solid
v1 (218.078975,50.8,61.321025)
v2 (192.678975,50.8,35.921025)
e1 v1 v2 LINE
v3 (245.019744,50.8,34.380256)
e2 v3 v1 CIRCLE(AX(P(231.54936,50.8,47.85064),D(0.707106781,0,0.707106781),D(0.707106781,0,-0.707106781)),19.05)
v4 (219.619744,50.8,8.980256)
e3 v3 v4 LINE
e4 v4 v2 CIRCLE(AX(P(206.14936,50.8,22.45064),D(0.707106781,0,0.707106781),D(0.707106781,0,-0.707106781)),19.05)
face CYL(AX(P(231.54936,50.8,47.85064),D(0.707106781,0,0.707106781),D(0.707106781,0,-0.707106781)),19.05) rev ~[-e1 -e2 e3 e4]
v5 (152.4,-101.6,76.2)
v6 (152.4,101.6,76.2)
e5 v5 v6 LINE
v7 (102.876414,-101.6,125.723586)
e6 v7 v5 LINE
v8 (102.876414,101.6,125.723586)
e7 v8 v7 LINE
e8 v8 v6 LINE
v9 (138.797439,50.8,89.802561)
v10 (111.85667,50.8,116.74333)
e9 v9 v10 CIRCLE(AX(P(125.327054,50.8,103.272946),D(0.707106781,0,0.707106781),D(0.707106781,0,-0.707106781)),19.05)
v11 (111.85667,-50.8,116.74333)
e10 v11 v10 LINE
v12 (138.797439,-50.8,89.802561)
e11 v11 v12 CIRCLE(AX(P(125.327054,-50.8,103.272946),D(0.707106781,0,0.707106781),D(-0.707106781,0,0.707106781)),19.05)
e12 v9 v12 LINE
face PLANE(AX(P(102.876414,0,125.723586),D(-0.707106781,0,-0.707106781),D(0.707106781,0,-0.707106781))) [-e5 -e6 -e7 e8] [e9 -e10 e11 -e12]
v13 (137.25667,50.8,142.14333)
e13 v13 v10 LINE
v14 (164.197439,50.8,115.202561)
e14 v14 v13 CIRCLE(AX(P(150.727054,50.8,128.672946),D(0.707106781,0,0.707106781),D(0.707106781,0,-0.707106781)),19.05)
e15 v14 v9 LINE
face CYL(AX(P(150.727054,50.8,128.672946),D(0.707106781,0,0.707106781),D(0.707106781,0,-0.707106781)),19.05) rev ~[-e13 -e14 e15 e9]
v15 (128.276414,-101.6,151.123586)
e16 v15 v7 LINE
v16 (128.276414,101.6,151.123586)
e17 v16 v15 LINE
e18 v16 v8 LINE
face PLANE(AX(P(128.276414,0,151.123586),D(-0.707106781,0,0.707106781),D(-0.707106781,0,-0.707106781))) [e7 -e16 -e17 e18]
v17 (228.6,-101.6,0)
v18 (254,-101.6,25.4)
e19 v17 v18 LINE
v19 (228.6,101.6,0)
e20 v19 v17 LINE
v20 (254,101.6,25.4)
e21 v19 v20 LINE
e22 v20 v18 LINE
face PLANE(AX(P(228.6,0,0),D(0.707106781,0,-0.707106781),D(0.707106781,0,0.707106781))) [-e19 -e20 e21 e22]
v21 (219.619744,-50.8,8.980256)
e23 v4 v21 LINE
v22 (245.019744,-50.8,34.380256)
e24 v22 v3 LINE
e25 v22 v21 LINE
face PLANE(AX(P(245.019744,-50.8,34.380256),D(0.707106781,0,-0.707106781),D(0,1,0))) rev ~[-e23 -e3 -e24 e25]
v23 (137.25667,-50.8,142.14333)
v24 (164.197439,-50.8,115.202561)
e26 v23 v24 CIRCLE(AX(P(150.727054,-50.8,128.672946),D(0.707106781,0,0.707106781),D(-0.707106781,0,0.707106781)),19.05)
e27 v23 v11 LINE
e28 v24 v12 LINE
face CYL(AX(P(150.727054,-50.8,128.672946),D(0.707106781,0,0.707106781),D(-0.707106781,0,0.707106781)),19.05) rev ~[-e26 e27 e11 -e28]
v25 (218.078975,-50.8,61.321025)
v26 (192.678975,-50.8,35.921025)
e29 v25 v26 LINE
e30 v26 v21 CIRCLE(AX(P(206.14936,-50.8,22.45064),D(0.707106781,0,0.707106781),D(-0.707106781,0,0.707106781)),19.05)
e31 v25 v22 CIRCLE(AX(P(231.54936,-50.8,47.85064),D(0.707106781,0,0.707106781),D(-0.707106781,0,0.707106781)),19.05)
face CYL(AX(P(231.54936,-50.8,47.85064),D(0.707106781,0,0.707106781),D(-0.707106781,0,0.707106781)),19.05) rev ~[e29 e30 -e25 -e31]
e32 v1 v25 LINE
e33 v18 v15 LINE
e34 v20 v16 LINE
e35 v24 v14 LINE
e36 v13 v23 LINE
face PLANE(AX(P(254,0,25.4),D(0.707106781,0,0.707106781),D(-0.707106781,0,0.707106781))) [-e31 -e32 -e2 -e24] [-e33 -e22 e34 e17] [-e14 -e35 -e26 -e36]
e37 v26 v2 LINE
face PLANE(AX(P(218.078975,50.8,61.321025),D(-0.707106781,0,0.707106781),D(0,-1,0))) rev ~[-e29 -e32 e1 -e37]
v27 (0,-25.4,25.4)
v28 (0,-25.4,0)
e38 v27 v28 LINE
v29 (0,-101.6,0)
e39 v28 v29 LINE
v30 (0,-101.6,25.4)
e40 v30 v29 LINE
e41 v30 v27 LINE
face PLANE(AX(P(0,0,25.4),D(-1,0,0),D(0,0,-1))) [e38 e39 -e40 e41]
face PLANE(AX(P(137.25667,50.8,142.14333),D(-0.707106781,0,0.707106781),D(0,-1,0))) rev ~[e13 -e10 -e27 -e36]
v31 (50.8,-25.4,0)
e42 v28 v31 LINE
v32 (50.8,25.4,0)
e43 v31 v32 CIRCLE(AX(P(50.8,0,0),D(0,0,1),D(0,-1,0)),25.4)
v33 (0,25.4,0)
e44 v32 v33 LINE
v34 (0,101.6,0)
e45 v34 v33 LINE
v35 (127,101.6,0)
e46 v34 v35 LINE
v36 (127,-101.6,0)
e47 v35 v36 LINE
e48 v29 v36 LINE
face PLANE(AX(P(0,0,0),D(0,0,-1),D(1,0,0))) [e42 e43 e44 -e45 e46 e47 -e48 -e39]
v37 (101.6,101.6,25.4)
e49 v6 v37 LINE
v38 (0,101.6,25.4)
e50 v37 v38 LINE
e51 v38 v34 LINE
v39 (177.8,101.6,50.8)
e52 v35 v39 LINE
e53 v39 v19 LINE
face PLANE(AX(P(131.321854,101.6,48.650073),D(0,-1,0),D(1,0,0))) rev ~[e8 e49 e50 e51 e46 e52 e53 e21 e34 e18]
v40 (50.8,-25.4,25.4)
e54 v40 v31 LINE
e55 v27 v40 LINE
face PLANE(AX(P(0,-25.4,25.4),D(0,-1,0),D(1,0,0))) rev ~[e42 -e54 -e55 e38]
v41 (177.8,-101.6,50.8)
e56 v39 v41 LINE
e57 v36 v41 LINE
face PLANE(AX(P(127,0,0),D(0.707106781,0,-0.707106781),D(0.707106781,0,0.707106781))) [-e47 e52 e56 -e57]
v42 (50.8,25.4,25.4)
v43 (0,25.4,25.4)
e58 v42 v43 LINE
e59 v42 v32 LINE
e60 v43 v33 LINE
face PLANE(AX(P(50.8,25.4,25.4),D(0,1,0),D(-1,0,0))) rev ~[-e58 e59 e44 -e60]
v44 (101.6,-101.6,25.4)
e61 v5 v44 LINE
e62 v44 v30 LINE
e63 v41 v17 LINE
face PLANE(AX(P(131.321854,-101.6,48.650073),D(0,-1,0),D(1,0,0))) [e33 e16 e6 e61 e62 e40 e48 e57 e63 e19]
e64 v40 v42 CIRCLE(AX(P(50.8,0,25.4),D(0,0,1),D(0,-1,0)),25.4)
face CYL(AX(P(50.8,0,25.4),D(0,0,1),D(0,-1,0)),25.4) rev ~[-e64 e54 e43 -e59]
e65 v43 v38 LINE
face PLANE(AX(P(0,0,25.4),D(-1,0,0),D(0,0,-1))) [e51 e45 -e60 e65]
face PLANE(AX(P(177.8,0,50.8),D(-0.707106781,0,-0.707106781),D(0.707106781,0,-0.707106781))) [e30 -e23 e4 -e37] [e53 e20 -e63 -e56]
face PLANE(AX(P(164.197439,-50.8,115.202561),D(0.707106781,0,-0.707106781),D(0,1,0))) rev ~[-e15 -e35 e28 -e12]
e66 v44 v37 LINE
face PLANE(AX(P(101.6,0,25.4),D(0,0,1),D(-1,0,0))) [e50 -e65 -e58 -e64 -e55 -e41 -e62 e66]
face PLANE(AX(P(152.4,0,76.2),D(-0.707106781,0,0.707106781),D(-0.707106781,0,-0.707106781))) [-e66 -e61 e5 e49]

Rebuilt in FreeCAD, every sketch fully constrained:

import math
import FreeCAD as App
import Part
import Sketcher
from FreeCAD import Vector
Q = App.Units.Quantity

doc = App.newDocument("Part")
body = doc.addObject("PartDesign::Body", "Body")

sketch1 = body.newObject("Sketcher::SketchObject", "Sketch")
sketch1.AttachmentSupport = (doc.getObject("XZ_Plane"), [""])
sketch1.MapMode = "FlatFace"
sketch1.addGeometry(Part.LineSegment(Vector(0, 25, 0), Vector(0, 0, 0)), False)
sketch1.addGeometry(Part.LineSegment(Vector(0, 0, 0), Vector(127, 0, 0)), False)
sketch1.addGeometry(Part.LineSegment(Vector(127, 0, 0), Vector(178, 51, 0)), False)
sketch1.addGeometry(Part.LineSegment(Vector(178, 51, 0), Vector(229, 0, 0)), False)
sketch1.addGeometry(Part.LineSegment(Vector(229, 0, 0), Vector(254, 25, 0)), False)
sketch1.addGeometry(Part.LineSegment(Vector(254, 25, 0), Vector(128, 151, 0)), False)
sketch1.addGeometry(Part.LineSegment(Vector(128, 151, 0), Vector(103, 126, 0)), False)
sketch1.addGeometry(Part.LineSegment(Vector(103, 126, 0), Vector(152, 76, 0)), False)
sketch1.addGeometry(Part.LineSegment(Vector(152, 76, 0), Vector(102, 25, 0)), False)
sketch1.addGeometry(Part.LineSegment(Vector(102, 25, 0), Vector(0, 25, 0)), False)
sketch1.addConstraint(Sketcher.Constraint("Coincident", 0, 2, 1, 1))
sketch1.addConstraint(Sketcher.Constraint("Coincident", 1, 2, 2, 1))
sketch1.addConstraint(Sketcher.Constraint("Coincident", 2, 2, 3, 1))
sketch1.addConstraint(Sketcher.Constraint("Coincident", 3, 2, 4, 1))
sketch1.addConstraint(Sketcher.Constraint("Coincident", 4, 2, 5, 1))
sketch1.addConstraint(Sketcher.Constraint("Coincident", 5, 2, 6, 1))
sketch1.addConstraint(Sketcher.Constraint("Coincident", 6, 2, 7, 1))
sketch1.addConstraint(Sketcher.Constraint("Coincident", 7, 2, 8, 1))
sketch1.addConstraint(Sketcher.Constraint("Coincident", 8, 2, 9, 1))
sketch1.addConstraint(Sketcher.Constraint("Coincident", 9, 2, 0, 1))
sketch1.addConstraint(Sketcher.Constraint("Vertical", 0))
sketch1.addConstraint(Sketcher.Constraint("Horizontal", 1))
sketch1.addConstraint(Sketcher.Constraint("Horizontal", 9))
sketch1.addConstraint(Sketcher.Constraint("Coincident", 0, 2, -1, 1))
sketch1.addConstraint(Sketcher.Constraint("PointOnObject", 3, 2, -1))
sketch1.addConstraint(Sketcher.Constraint("Perpendicular", 2, 3))
sketch1.addConstraint(Sketcher.Constraint("Perpendicular", 3, 4))
sketch1.addConstraint(Sketcher.Constraint("Perpendicular", 4, 5))
sketch1.addConstraint(Sketcher.Constraint("Perpendicular", 5, 6))
sketch1.addConstraint(Sketcher.Constraint("Perpendicular", 6, 7))
sketch1.addConstraint(Sketcher.Constraint("Perpendicular", 7, 8))
sketch1.addConstraint(Sketcher.Constraint("Horizontal", 4, 2, 8, 2))
sketch1.addConstraint(Sketcher.Constraint("Equal", 2, 3))
sketch1.addConstraint(Sketcher.Constraint("Equal", 4, 6))
sketch1.addConstraint(Sketcher.Constraint("Equal", 3, 8))
sketch1.addConstraint(Sketcher.Constraint("DistanceX", 1, 1, 1, 2, Q("5 in")))
sketch1.addConstraint(Sketcher.Constraint("DistanceX", 9, 2, 9, 1, Q("4 in")))
sketch1.addConstraint(Sketcher.Constraint("Distance", 5, Q("7 in")))
sketch1.addConstraint(Sketcher.Constraint("DistanceX", -1, 1, 2, 2, Q("7 in")))
pad1 = body.newObject("PartDesign::Pad", "Pad")
pad1.Profile = sketch1
pad1.Length = Q("8 in")
pad1.Midplane = True

sketch2 = body.newObject("Sketcher::SketchObject", "Sketch001")
sketch2.Placement = App.Placement(Vector(139.7, 0, 139.7), App.Rotation(Vector(0, 1, 0), Vector(-0.707106781, 0, 0.707106781), Vector(0.707106781, 0, 0.707106781), "ZXY"))
sketch2.addGeometry(Part.LineSegment(Vector(51, 3, 0), Vector(-51, 3, 0)), False)
sketch2.addGeometry(Part.ArcOfCircle(Part.Circle(Vector(-51, -16, 0), Vector(0, 0, 1), 19), math.radians(90), math.radians(270)), False)
sketch2.addGeometry(Part.LineSegment(Vector(-51, -35, 0), Vector(51, -35, 0)), False)
sketch2.addGeometry(Part.ArcOfCircle(Part.Circle(Vector(51, -16, 0), Vector(0, 0, 1), 19), math.radians(-90), math.radians(90)), False)
sketch2.addGeometry(Part.ArcOfCircle(Part.Circle(Vector(-51, -130, 0), Vector(0, 0, 1), 19), math.radians(90), math.radians(270)), False)
sketch2.addGeometry(Part.LineSegment(Vector(-51, -149, 0), Vector(51, -149, 0)), False)
sketch2.addGeometry(Part.ArcOfCircle(Part.Circle(Vector(51, -130, 0), Vector(0, 0, 1), 19), math.radians(-90), math.radians(90)), False)
sketch2.addGeometry(Part.LineSegment(Vector(51, -111, 0), Vector(-51, -111, 0)), False)
sketch2.addConstraint(Sketcher.Constraint("Tangent", 0, 2, 1, 1))
sketch2.addConstraint(Sketcher.Constraint("Tangent", 1, 2, 2, 1))
sketch2.addConstraint(Sketcher.Constraint("Tangent", 2, 2, 3, 1))
sketch2.addConstraint(Sketcher.Constraint("Tangent", 3, 2, 0, 1))
sketch2.addConstraint(Sketcher.Constraint("Tangent", 4, 2, 5, 1))
sketch2.addConstraint(Sketcher.Constraint("Tangent", 5, 2, 6, 1))
sketch2.addConstraint(Sketcher.Constraint("Tangent", 6, 2, 7, 1))
sketch2.addConstraint(Sketcher.Constraint("Tangent", 7, 2, 4, 1))
sketch2.addConstraint(Sketcher.Constraint("Horizontal", 0))
sketch2.addConstraint(Sketcher.Constraint("Horizontal", 2))
sketch2.addConstraint(Sketcher.Constraint("Horizontal", 5))
sketch2.addConstraint(Sketcher.Constraint("Horizontal", 7))
sketch2.addConstraint(Sketcher.Constraint("Equal", 3, 4))
sketch2.addConstraint(Sketcher.Constraint("Vertical", 1, 3, 4, 3))
sketch2.addConstraint(Sketcher.Constraint("Vertical", 3, 3, 6, 3))
sketch2.addConstraint(Sketcher.Constraint("DistanceX", 0, 2, 0, 1, Q("4 in")))
sketch2.addConstraint(Sketcher.Constraint("Radius", 1, Q("0.75 in")))
sketch2.addConstraint(Sketcher.Constraint("DistanceX", 1, 3, -1, 1, Q("2 in")))
sketch2.addConstraint(Sketcher.Constraint("DistanceY", 4, 2, 0, 2, Q("6 in")))
sketch2.addConstraint(Sketcher.Constraint("DistanceY", 1, 3, -1, 1, Q("15.59461 mm")))
pocket1 = body.newObject("PartDesign::Pocket", "Pocket")
pocket1.Profile = sketch2
pocket1.Length = Q("1.5 in")

sketch3 = body.newObject("Sketcher::SketchObject", "Sketch002")
sketch3.AttachmentSupport = (doc.getObject("XY_Plane"), [""])
sketch3.MapMode = "FlatFace"
sketch3.AttachmentOffset = App.Placement(Vector(0, 0, 1 * 25.4), App.Rotation())
sketch3.addGeometry(Part.LineSegment(Vector(0, -25, 0), Vector(51, -25, 0)), False)
sketch3.addGeometry(Part.ArcOfCircle(Part.Circle(Vector(51, 0, 0), Vector(0, 0, 1), 25), math.radians(-90), math.radians(90)), False)
sketch3.addGeometry(Part.LineSegment(Vector(51, 25, 0), Vector(0, 25, 0)), False)
sketch3.addGeometry(Part.LineSegment(Vector(0, 25, 0), Vector(0, -25, 0)), False)
sketch3.addConstraint(Sketcher.Constraint("Tangent", 0, 2, 1, 1))
sketch3.addConstraint(Sketcher.Constraint("Tangent", 1, 2, 2, 1))
sketch3.addConstraint(Sketcher.Constraint("Coincident", 2, 2, 3, 1))
sketch3.addConstraint(Sketcher.Constraint("Coincident", 3, 2, 0, 1))
sketch3.addConstraint(Sketcher.Constraint("Horizontal", 0))
sketch3.addConstraint(Sketcher.Constraint("Horizontal", 2))
sketch3.addConstraint(Sketcher.Constraint("Vertical", 3))
sketch3.addConstraint(Sketcher.Constraint("Symmetric", 2, 2, 3, 2, -1, 1))
sketch3.addConstraint(Sketcher.Constraint("Equal", 2, 3))
sketch3.addConstraint(Sketcher.Constraint("Radius", 1, Q("1 in")))
pocket2 = body.newObject("PartDesign::Pocket", "Pocket001")
pocket2.Profile = sketch3
pocket2.Length = Q("1 in")

doc.recompute()
